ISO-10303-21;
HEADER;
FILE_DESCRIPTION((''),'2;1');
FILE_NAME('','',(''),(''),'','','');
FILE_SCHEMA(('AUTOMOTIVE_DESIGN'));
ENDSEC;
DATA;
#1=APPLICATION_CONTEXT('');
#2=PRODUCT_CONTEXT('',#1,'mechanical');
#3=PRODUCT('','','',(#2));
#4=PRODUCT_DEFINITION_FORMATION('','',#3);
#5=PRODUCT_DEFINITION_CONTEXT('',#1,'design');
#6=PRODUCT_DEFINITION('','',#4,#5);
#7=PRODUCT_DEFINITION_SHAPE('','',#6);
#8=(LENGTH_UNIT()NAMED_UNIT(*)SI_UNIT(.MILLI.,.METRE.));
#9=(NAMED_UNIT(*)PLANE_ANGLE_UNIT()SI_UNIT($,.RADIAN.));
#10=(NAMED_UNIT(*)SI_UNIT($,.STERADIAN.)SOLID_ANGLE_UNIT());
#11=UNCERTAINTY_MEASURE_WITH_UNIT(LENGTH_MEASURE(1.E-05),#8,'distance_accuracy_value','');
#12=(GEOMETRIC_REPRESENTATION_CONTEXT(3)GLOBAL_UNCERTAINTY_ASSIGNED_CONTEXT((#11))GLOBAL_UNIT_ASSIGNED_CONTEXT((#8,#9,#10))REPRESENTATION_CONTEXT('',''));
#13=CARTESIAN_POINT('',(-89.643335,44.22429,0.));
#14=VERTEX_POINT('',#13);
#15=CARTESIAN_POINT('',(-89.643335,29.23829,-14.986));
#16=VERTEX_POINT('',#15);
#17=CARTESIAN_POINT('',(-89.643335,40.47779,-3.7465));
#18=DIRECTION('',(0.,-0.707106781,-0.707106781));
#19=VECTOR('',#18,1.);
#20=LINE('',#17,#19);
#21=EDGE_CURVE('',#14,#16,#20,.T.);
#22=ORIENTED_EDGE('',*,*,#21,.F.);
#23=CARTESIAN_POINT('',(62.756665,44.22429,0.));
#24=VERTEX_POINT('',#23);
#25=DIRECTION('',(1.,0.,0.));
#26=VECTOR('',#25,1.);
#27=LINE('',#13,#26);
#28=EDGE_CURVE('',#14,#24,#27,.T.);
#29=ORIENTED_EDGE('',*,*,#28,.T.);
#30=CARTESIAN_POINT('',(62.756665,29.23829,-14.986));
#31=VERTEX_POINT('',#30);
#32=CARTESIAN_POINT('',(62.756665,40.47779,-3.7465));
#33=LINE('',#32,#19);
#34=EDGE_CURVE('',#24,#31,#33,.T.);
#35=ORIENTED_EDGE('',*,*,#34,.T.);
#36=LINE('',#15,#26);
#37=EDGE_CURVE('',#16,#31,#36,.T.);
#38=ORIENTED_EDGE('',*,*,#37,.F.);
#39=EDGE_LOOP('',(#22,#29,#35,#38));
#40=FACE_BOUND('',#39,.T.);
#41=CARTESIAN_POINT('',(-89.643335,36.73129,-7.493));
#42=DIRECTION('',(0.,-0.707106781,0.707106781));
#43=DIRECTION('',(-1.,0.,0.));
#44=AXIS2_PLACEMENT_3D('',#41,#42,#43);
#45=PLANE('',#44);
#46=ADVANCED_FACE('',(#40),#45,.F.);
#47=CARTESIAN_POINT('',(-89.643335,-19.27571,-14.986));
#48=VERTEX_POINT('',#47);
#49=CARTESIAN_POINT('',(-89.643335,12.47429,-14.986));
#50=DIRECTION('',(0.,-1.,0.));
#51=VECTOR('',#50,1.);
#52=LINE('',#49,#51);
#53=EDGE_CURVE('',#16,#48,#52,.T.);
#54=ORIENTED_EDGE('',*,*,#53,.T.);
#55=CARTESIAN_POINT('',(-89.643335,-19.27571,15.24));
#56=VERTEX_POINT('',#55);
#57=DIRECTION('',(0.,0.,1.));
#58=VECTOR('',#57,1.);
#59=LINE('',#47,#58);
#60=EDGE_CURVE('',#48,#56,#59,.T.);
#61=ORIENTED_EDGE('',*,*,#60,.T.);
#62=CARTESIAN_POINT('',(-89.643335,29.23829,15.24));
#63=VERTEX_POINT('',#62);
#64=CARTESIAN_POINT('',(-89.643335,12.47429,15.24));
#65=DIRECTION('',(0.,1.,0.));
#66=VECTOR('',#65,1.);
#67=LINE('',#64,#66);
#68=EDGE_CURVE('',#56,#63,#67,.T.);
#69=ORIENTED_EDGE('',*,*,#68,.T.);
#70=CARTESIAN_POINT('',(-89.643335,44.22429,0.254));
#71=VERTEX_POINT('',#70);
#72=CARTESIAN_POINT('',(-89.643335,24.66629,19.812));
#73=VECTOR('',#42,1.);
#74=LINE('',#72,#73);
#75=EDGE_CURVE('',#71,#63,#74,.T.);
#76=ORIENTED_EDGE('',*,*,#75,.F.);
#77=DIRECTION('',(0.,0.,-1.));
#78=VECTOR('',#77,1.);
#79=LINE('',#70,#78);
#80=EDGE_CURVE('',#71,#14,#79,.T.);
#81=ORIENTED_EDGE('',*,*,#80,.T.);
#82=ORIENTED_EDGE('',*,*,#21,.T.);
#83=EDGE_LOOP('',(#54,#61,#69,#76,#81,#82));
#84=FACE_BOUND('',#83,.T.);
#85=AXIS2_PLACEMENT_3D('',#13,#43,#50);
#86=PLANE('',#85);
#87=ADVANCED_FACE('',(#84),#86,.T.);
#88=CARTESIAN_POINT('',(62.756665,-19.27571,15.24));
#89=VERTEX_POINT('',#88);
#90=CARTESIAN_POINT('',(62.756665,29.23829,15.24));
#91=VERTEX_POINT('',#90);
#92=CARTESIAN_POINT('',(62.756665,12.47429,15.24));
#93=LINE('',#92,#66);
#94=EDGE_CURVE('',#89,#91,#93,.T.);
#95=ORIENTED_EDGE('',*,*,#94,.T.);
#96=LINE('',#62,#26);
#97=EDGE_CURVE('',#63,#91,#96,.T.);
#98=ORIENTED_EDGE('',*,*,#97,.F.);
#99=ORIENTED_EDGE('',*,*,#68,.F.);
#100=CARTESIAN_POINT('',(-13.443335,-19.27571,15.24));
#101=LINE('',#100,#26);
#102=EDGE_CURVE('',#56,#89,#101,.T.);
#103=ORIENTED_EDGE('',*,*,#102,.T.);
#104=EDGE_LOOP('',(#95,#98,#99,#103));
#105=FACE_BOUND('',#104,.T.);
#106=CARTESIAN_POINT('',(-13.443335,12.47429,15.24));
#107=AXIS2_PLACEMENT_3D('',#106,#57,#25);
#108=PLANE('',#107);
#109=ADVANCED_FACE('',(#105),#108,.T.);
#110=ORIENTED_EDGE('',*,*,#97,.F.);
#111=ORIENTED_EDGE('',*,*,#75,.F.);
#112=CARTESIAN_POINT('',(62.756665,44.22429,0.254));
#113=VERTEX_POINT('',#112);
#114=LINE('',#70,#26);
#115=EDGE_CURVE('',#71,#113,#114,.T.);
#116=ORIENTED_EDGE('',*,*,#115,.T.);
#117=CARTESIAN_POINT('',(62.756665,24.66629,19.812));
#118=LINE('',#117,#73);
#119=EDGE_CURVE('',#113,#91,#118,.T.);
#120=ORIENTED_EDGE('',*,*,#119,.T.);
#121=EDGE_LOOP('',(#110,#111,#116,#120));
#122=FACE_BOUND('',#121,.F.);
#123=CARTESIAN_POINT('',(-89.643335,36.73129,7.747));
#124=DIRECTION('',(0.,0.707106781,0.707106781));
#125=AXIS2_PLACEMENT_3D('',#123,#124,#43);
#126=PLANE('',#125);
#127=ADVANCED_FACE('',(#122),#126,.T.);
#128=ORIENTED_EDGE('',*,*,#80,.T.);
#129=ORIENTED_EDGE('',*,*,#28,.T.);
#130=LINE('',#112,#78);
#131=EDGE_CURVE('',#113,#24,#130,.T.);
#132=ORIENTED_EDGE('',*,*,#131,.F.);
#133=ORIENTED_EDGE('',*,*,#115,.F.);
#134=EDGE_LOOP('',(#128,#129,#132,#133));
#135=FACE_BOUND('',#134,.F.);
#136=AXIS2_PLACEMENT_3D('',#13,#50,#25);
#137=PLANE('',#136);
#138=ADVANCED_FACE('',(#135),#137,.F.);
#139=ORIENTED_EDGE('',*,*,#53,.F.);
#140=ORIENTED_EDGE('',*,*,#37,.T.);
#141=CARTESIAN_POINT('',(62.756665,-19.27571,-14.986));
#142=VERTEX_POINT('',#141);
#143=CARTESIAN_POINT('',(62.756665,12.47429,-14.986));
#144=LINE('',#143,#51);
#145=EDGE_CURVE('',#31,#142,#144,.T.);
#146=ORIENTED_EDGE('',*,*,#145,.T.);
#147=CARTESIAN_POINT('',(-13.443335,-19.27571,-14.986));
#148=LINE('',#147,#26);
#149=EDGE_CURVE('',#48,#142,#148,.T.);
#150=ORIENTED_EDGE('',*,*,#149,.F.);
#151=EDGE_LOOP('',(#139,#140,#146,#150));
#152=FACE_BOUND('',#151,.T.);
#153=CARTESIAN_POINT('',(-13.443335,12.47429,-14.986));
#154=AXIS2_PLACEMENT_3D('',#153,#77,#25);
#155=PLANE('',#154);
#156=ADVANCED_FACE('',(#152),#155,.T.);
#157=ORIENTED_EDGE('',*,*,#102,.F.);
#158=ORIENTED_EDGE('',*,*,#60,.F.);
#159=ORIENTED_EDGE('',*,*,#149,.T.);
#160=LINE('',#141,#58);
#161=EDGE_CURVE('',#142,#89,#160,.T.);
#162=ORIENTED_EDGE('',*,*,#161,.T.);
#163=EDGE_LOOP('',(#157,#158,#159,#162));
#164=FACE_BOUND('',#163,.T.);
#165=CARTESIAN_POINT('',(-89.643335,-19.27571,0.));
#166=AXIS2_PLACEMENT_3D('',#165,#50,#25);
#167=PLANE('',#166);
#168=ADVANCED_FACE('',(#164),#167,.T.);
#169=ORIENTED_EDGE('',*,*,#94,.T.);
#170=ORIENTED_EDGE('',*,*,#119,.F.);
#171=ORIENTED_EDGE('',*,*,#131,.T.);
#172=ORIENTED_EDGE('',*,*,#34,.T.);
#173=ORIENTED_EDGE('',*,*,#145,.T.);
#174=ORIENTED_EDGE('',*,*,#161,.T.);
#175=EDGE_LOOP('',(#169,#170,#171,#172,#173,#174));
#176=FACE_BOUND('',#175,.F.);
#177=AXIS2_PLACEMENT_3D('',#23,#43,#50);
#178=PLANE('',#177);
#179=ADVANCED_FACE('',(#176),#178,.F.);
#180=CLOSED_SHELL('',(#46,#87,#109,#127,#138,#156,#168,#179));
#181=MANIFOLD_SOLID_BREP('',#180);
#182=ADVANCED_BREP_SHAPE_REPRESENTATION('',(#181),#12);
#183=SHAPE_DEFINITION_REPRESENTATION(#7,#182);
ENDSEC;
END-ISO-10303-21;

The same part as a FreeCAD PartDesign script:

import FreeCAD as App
import Part
import Sketcher

V = App.Vector
Q = App.Units.Quantity


def edges_at(feature, points):
    """Names of the edges that pass closest to the given points."""
    edges = feature.Shape.Edges
    near = lambda p: min(range(len(edges)), key=lambda i: edges[i].distToShape(Part.Vertex(*p))[0])
    return sorted({f"Edge{near(p) + 1}" for p in points})

doc = App.newDocument("Part")
body = doc.addObject("PartDesign::Body", "Body")

# Sketch on XY plane
sketch1 = body.newObject("Sketcher::SketchObject", "Sketch")
sketch1.AttachmentSupport = (doc.getObject("XY_Plane"), [""])
sketch1.MapMode = "FlatFace"
sketch1.addGeometry(Part.LineSegment(V(-90, 44, 0), V(-90, -19, 0)), False)
sketch1.addGeometry(Part.LineSegment(V(-90, -19, 0), V(63, -19, 0)), False)
sketch1.addGeometry(Part.LineSegment(V(63, -19, 0), V(63, 44, 0)), False)
sketch1.addGeometry(Part.LineSegment(V(63, 44, 0), V(-90, 44, 0)), False)
sketch1.addConstraint(Sketcher.Constraint("Coincident", 0, 2, 1, 1))
sketch1.addConstraint(Sketcher.Constraint("Coincident", 1, 2, 2, 1))
sketch1.addConstraint(Sketcher.Constraint("Coincident", 2, 2, 3, 1))
sketch1.addConstraint(Sketcher.Constraint("Coincident", 3, 2, 0, 1))
sketch1.addConstraint(Sketcher.Constraint("Vertical", 0))
sketch1.addConstraint(Sketcher.Constraint("Horizontal", 1))
sketch1.addConstraint(Sketcher.Constraint("Vertical", 2))
sketch1.addConstraint(Sketcher.Constraint("Horizontal", 3))
sketch1.addConstraint(Sketcher.Constraint("DistanceX", 1, 1, 1, 2, Q("6 in")))
sketch1.addConstraint(Sketcher.Constraint("DistanceY", 0, 2, 0, 1, Q("2.5 in")))
sketch1.addConstraint(Sketcher.Constraint("DistanceY", 0, 2, -1, 1, 19.27571))
sketch1.addConstraint(Sketcher.Constraint("DistanceX", 0, 2, -1, 1, 89.643335))
pad1 = body.newObject("PartDesign::Pad", "Pad")
pad1.Profile = sketch1
pad1.Length = Q("0.6 in")
doc.recompute()

chamfer = body.newObject("PartDesign::Chamfer", "Chamfer")
chamfer.Base = (pad1, edges_at(pad1, [(-13.443, 44.224, 15.24)]))
chamfer.Size = Q("0.59 in")

# Sketch on XY plane
sketch2 = body.newObject("Sketcher::SketchObject", "Sketch001")
sketch2.AttachmentSupport = (doc.getObject("XY_Plane"), [""])
sketch2.MapMode = "FlatFace"
sketch2.addGeometry(Part.LineSegment(V(-90, -19, 0), V(-90, 44, 0)), False)
sketch2.addGeometry(Part.LineSegment(V(-90, 44, 0), V(63, 44, 0)), False)
sketch2.addGeometry(Part.LineSegment(V(63, 44, 0), V(63, -19, 0)), False)
sketch2.addGeometry(Part.LineSegment(V(63, -19, 0), V(-90, -19, 0)), False)
sketch2.addConstraint(Sketcher.Constraint("Coincident", 0, 2, 1, 1))
sketch2.addConstraint(Sketcher.Constraint("Coincident", 1, 2, 2, 1))
sketch2.addConstraint(Sketcher.Constraint("Coincident", 2, 2, 3, 1))
sketch2.addConstraint(Sketcher.Constraint("Coincident", 3, 2, 0, 1))
sketch2.addConstraint(Sketcher.Constraint("Vertical", 0))
sketch2.addConstraint(Sketcher.Constraint("Horizontal", 1))
sketch2.addConstraint(Sketcher.Constraint("Vertical", 2))
sketch2.addConstraint(Sketcher.Constraint("Horizontal", 3))
sketch2.addConstraint(Sketcher.Constraint("DistanceX", 1, 1, 1, 2, Q("6 in")))
sketch2.addConstraint(Sketcher.Constraint("DistanceY", 0, 1, 0, 2, Q("2.5 in")))
sketch2.addConstraint(Sketcher.Constraint("DistanceY", -1, 1, 0, 2, 44.22429))
sketch2.addConstraint(Sketcher.Constraint("DistanceX", 0, 2, -1, 1, 89.643335))
pad2 = body.newObject("PartDesign::Pad", "Pad001")
pad2.Profile = sketch2
pad2.Length = Q("0.59 in")
pad2.Reversed = True
doc.recompute()

chamfer2 = body.newObject("PartDesign::Chamfer", "Chamfer001")
chamfer2.Base = (pad2, edges_at(pad2, [(-13.443, 44.224, -14.986)]))
chamfer2.Size = Q("0.59 in")

doc.recompute()
